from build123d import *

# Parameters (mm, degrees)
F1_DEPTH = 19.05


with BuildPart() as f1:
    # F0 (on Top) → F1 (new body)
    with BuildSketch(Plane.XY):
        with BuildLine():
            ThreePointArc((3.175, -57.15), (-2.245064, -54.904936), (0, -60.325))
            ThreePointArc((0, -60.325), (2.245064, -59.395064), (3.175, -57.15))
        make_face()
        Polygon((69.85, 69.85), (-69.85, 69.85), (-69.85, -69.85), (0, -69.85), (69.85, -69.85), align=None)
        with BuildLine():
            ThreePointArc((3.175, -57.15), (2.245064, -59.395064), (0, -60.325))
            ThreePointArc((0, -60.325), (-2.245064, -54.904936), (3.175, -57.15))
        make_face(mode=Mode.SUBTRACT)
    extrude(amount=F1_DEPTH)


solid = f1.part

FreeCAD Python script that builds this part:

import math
import FreeCAD as App
import Part
import Sketcher
Q = App.Units.Quantity


def add_polygon(sketch, points):
    """Adds a closed chain of lines whose ends are joined by coincident constraints."""
    first, n = sketch.GeometryCount, len(points)
    for a, b in zip(points, points[1:] + points[:1]):
        sketch.addGeometry(Part.LineSegment(App.Vector(*a, 0), App.Vector(*b, 0)), False)
    for i in range(n):
        sketch.addConstraint(Sketcher.Constraint("Coincident", first + i, 2, first + (i + 1) % n, 1))

doc = App.newDocument("Part")
body = doc.addObject("PartDesign::Body", "Body")

# Sketch on XY plane
sketch1 = body.newObject("Sketcher::SketchObject", "Sketch")
sketch1.AttachmentSupport = (doc.getObject("XY_Plane"), [""])
sketch1.MapMode = "FlatFace"
add_polygon(sketch1, [(69.8, 69.8), (-69.8, 69.8), (-69.8, -69.8), (69.8, -69.8)])  # lines 0-3
sketch1.addGeometry(Part.ArcOfCircle(Part.Circle(App.Vector(0, -57.2, 0), App.Vector(0, 0, 1), 3.2), math.radians(0), math.radians(270)), False)  # 4
sketch1.addGeometry(Part.ArcOfCircle(Part.Circle(App.Vector(0, -57.1, 0), App.Vector(0, 0, 1), 3.2), math.radians(-90), math.radians(0)), False)  # 5
sketch1.addConstraint([
    Sketcher.Constraint("Tangent", 4, 1, 5, 2),
    Sketcher.Constraint("Coincident", 5, 1, 4, 2),
    Sketcher.Constraint("Horizontal", 0),
    Sketcher.Constraint("Vertical", 1),
    Sketcher.Constraint("Horizontal", 2),
    Sketcher.Constraint("Vertical", 3),
    Sketcher.Constraint("Symmetric", 0, 2, 2, 2, -1, 1),
    Sketcher.Constraint("PointOnObject", 4, 3, -2),
    Sketcher.Constraint("PointOnObject", 5, 1, -2),
    Sketcher.Constraint("Horizontal", 5, 3, 4, 1),
    Sketcher.Constraint("Equal", 2, 1),
    Sketcher.Constraint("DistanceX", 0, 2, 0, 1, Q("5.5 in")),
    Sketcher.Constraint("Radius", 4, Q("0.125 in")),
    Sketcher.Constraint("DistanceY", 5, 3, 0, 2, Q("5 in")),
])
pad1 = body.newObject("PartDesign::Pad", "Pad")
pad1.Profile = sketch1
pad1.Length = Q("0.75 in")

doc.recompute()
